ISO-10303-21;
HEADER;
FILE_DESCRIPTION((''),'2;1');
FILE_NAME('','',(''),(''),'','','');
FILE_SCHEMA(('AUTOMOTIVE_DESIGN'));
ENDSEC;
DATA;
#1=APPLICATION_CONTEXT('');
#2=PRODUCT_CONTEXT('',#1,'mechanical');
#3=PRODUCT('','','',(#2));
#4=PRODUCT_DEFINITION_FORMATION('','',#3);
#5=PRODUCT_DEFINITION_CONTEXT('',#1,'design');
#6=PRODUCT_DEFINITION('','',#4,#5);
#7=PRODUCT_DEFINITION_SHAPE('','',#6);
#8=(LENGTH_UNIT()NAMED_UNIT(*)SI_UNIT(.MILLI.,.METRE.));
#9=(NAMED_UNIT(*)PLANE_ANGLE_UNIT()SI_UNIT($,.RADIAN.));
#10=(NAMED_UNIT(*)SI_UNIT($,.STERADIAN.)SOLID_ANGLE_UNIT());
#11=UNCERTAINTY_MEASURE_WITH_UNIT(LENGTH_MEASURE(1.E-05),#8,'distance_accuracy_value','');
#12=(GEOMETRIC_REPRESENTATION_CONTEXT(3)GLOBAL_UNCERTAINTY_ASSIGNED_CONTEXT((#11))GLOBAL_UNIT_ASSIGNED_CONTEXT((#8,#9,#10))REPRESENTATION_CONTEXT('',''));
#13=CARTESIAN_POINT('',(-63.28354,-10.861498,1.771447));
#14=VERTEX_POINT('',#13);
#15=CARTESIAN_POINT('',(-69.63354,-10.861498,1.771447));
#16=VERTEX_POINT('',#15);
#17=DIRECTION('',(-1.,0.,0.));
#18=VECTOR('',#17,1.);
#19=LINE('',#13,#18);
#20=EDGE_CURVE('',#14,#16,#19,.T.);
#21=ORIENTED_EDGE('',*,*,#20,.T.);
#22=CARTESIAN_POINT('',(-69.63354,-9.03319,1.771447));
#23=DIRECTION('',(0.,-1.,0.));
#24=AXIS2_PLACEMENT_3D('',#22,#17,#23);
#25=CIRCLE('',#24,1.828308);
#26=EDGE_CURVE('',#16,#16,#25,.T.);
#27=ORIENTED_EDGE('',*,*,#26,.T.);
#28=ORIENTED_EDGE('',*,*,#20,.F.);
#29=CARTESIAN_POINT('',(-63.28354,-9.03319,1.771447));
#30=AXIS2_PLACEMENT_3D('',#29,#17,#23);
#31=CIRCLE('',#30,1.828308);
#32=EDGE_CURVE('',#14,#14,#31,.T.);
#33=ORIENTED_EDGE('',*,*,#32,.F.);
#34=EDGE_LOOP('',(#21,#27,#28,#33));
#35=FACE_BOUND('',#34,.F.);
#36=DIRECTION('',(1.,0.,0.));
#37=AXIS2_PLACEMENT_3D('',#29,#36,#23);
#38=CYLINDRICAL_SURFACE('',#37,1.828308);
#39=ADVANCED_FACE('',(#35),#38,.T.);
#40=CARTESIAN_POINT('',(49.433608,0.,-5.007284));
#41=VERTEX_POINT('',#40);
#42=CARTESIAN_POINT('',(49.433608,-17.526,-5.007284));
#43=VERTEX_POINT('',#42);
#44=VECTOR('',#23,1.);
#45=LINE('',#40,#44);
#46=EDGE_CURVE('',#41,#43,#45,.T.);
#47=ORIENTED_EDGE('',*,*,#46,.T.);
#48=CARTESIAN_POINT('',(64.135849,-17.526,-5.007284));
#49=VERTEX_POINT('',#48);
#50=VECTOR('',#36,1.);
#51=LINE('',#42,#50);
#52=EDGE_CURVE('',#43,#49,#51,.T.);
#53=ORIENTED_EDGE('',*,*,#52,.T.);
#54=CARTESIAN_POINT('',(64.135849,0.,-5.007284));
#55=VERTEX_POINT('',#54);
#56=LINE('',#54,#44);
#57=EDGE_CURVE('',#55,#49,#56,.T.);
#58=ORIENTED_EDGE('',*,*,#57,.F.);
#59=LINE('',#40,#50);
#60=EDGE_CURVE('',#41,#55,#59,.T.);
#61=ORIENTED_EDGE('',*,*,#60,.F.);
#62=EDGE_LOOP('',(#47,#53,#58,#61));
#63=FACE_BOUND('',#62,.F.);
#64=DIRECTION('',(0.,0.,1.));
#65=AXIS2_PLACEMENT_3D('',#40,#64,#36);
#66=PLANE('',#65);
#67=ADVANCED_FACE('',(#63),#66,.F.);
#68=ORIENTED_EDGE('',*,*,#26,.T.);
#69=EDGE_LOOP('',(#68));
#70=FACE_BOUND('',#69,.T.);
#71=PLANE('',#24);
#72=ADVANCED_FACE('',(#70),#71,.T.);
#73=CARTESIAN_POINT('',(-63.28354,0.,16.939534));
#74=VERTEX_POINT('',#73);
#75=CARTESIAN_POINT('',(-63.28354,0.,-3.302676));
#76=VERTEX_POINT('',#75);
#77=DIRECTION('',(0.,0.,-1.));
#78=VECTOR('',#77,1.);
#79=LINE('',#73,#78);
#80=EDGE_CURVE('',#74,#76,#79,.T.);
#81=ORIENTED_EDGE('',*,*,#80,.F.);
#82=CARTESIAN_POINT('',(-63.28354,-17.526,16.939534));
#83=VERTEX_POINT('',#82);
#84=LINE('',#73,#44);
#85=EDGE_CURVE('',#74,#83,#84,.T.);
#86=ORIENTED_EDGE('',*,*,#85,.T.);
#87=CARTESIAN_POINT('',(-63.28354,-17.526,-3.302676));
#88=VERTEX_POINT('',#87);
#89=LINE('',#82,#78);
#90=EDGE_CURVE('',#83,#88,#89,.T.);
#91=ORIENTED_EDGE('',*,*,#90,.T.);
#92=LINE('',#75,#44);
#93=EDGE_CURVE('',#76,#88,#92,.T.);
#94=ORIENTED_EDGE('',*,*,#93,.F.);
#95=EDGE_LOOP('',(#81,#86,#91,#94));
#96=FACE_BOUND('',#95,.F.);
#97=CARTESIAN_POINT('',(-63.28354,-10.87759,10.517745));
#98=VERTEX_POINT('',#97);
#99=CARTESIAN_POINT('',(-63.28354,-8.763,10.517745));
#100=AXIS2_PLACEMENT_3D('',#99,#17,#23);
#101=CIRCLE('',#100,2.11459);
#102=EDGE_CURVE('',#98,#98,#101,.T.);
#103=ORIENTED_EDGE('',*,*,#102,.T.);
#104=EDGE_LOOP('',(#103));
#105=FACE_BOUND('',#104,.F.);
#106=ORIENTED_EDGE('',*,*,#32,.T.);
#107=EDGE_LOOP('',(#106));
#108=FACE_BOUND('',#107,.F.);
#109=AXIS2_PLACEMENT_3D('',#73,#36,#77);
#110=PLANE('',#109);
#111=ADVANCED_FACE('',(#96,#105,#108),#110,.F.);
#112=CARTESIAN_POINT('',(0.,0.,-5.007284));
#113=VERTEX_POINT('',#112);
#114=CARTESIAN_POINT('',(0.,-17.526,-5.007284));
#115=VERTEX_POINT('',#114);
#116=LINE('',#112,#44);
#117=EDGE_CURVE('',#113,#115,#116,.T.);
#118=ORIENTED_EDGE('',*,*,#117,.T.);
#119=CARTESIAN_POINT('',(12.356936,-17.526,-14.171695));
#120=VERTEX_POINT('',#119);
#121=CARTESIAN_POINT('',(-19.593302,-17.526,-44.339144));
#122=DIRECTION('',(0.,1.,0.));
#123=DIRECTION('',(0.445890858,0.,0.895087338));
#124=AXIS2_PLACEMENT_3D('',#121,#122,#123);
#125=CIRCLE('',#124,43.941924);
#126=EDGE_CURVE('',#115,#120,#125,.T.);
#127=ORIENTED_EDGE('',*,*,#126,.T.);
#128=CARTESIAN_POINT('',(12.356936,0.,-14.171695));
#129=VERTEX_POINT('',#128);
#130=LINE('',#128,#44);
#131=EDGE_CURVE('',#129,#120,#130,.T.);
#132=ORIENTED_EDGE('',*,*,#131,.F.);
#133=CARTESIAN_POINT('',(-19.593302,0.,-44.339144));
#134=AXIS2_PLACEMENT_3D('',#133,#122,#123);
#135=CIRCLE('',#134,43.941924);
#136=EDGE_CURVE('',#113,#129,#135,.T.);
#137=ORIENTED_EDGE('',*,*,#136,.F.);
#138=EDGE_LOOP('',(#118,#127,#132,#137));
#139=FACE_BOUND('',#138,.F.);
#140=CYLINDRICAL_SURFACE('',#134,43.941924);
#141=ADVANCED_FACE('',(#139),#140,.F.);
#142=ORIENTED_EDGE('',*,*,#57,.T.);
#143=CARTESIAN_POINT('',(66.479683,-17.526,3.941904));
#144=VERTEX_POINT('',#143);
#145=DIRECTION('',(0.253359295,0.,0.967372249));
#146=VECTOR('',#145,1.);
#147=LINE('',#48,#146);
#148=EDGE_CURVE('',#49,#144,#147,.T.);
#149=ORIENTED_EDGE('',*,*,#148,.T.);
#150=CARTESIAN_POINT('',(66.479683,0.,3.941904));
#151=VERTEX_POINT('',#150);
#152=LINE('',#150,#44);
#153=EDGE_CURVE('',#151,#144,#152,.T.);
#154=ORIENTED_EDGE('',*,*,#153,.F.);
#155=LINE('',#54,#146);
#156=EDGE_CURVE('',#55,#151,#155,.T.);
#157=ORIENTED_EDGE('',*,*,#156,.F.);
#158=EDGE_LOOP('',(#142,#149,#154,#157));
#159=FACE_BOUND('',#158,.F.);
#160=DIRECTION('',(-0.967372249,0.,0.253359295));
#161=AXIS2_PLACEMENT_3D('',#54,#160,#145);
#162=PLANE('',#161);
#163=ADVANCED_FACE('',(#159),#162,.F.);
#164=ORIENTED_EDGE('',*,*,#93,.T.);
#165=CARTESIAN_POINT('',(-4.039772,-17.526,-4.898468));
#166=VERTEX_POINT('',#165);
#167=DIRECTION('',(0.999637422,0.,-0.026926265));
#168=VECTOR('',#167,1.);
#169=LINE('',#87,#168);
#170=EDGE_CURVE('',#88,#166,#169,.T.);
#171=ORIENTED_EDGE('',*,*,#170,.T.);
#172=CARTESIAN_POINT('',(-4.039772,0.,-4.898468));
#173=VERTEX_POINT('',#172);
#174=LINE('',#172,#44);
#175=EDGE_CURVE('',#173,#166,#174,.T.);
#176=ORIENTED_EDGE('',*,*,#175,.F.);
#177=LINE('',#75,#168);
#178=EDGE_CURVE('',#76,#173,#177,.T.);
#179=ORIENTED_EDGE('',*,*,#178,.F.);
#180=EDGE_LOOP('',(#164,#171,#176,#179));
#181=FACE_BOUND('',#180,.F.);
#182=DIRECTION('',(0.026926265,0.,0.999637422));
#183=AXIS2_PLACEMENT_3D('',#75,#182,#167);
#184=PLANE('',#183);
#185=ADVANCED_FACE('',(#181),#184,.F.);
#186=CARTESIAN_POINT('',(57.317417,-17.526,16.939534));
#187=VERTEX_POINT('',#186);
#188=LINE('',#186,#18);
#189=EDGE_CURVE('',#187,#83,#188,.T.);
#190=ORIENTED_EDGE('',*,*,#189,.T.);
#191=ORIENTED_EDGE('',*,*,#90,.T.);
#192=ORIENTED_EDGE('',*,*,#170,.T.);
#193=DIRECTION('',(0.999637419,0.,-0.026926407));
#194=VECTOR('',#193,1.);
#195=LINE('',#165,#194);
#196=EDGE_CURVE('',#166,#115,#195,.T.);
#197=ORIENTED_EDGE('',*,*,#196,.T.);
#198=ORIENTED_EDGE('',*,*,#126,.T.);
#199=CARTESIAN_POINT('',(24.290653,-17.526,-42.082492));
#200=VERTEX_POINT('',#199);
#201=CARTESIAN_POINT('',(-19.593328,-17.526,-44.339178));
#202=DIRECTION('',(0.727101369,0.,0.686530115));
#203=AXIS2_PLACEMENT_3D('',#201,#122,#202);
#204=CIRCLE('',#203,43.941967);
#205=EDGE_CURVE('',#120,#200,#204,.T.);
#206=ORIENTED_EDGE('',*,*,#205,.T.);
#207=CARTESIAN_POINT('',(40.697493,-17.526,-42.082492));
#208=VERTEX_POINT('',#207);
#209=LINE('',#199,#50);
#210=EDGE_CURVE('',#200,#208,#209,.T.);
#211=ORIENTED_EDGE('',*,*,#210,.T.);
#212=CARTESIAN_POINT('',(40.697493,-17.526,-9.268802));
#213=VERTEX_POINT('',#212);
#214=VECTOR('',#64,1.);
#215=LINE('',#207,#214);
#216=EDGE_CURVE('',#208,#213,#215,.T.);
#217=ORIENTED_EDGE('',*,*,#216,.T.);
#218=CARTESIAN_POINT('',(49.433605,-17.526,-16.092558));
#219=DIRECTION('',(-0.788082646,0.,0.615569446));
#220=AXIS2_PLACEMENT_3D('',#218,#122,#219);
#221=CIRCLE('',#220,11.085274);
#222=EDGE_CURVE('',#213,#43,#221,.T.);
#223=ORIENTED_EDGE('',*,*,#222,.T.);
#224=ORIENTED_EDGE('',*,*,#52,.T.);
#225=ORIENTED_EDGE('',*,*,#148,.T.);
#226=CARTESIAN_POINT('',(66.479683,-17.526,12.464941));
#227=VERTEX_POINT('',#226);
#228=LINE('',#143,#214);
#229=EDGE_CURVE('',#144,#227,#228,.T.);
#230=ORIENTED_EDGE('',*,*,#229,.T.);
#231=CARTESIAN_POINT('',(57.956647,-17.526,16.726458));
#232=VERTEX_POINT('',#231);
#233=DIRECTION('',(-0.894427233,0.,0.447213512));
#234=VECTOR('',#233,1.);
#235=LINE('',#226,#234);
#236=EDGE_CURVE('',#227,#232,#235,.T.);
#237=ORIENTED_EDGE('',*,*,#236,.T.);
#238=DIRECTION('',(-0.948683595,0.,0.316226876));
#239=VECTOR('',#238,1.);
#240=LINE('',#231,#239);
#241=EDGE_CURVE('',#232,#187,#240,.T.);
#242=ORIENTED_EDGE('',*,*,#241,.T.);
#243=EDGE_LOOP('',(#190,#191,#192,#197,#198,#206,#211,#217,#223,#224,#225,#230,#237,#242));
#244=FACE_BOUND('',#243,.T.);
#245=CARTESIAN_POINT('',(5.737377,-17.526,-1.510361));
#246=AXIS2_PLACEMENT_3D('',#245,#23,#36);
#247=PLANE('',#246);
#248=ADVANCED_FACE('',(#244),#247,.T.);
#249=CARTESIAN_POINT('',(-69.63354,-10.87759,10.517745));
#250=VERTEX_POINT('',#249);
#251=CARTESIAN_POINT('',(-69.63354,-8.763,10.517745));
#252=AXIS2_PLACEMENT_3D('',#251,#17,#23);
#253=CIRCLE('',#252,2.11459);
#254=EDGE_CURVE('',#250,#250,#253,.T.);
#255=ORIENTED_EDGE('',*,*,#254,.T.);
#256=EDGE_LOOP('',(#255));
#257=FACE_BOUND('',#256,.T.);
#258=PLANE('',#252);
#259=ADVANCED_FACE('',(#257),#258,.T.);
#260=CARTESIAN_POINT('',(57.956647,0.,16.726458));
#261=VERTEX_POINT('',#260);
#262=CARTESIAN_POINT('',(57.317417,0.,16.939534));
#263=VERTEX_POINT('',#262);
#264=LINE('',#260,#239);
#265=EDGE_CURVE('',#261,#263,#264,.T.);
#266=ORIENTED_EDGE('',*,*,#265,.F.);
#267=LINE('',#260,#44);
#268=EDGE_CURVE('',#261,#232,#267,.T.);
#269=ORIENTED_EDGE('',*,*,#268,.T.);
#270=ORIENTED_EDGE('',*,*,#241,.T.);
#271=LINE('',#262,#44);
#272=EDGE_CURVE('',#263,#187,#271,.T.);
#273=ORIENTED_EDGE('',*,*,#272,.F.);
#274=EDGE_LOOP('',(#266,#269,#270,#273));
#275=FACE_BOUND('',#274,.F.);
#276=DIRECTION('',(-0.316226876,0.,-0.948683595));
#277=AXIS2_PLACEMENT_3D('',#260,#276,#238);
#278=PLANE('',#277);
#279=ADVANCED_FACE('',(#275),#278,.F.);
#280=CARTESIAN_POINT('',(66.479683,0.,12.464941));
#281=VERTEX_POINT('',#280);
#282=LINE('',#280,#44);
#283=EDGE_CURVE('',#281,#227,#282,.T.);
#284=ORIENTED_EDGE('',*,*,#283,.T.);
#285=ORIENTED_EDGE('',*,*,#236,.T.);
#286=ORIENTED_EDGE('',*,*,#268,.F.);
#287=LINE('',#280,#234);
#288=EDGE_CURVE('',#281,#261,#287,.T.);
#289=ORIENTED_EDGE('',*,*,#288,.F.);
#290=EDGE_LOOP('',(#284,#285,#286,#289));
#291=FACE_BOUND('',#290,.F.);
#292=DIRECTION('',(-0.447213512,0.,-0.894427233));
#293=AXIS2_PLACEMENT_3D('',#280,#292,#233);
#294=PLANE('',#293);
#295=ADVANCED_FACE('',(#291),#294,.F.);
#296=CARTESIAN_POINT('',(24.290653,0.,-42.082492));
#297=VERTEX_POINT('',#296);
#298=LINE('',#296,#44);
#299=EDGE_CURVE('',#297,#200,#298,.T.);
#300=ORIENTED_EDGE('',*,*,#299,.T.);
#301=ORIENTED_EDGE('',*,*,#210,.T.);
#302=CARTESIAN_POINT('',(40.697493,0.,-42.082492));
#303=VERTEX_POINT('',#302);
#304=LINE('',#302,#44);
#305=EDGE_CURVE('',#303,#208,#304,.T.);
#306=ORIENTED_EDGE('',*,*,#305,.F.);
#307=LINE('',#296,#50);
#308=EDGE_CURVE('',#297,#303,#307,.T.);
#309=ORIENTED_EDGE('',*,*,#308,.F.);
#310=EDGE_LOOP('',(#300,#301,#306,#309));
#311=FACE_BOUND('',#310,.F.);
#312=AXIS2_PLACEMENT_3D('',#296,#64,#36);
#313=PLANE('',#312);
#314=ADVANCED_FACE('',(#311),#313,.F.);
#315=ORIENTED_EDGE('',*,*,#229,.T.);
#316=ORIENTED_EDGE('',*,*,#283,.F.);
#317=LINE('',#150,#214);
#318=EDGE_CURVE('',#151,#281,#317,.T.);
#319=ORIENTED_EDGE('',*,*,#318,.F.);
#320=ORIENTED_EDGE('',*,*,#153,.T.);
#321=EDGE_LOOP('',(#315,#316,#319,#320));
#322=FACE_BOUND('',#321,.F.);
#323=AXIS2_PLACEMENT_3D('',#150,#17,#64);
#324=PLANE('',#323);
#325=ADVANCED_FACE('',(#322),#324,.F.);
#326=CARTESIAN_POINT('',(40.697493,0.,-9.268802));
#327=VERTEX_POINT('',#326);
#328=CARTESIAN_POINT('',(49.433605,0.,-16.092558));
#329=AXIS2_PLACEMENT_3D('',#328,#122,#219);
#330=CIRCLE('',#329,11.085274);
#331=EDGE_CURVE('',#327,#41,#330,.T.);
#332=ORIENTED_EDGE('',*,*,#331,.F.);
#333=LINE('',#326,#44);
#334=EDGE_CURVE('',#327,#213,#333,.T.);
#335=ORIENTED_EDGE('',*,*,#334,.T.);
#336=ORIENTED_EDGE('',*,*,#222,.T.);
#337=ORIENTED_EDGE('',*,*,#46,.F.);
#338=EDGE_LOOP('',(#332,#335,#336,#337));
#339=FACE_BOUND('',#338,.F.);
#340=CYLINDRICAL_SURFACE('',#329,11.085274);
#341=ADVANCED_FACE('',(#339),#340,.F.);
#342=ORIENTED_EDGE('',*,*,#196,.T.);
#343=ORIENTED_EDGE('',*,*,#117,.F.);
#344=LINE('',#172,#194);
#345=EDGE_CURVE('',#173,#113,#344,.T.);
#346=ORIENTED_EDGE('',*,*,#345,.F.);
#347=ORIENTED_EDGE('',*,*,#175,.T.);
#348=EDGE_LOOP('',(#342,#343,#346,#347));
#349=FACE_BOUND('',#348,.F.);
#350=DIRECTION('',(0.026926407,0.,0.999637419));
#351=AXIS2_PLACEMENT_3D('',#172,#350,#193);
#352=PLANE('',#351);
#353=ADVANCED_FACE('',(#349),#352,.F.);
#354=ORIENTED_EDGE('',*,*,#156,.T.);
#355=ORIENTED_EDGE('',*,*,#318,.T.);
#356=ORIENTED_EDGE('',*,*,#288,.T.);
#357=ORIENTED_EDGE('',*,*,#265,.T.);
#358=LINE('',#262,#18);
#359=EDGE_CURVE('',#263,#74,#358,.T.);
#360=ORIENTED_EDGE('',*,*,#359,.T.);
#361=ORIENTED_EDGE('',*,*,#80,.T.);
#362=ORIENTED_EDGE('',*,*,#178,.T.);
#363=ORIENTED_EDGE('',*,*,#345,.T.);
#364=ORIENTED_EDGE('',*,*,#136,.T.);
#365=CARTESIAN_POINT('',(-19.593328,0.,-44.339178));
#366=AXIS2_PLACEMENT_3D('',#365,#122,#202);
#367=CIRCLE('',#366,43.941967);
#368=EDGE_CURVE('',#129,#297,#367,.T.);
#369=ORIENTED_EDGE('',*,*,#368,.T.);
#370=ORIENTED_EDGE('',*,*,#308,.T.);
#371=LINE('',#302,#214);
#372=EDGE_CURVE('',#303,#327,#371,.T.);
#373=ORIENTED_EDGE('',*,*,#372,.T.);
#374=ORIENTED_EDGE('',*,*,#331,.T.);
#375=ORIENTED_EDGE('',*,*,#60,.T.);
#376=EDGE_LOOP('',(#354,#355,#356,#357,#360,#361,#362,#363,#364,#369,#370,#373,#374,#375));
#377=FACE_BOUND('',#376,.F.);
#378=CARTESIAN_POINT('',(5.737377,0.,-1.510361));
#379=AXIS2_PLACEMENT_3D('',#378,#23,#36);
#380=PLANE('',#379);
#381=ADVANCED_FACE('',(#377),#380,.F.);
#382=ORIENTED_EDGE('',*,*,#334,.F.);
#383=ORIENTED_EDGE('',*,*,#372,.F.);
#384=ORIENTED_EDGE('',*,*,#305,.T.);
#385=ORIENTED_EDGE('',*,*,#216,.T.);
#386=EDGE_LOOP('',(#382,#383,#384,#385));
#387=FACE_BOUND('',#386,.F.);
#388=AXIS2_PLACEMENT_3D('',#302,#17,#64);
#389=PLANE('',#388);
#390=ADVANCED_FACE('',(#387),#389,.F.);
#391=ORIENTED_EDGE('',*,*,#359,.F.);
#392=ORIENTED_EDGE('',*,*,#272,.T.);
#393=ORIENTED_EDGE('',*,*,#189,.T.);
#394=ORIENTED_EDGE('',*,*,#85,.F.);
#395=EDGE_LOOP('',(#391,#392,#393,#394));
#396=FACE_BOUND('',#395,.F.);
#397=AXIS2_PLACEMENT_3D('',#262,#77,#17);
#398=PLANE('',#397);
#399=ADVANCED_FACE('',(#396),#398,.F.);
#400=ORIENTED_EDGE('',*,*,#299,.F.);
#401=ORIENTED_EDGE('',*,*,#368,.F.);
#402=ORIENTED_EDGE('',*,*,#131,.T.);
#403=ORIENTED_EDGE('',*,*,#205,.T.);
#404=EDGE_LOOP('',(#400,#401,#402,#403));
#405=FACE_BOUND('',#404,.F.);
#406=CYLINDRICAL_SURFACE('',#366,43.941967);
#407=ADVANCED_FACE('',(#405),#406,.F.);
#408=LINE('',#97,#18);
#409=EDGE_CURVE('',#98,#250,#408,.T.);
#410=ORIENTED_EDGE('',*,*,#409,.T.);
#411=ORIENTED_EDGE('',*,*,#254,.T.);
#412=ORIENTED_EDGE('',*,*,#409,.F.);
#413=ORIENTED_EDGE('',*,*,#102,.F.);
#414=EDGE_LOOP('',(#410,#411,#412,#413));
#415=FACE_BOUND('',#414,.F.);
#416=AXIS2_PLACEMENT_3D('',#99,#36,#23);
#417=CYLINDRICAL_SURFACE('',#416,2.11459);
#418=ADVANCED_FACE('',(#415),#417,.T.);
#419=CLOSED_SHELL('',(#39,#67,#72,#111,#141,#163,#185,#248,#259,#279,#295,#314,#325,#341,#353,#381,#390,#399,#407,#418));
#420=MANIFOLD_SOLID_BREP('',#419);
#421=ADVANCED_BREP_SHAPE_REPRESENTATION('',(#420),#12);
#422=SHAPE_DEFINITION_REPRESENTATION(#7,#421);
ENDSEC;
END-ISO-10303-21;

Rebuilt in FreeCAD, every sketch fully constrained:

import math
import FreeCAD as App
import Part
import Sketcher

V = App.Vector
Q = App.Units.Quantity

doc = App.newDocument("Part")
body = doc.addObject("PartDesign::Body", "Body")

sketch1 = body.newObject("Sketcher::SketchObject", "Sketch")
sketch1.AttachmentSupport = (doc.getObject("XZ_Plane"), [""])
sketch1.MapMode = "FlatFace"
sketch1.addGeometry([
    Part.ArcOfCircle(Part.Circle(V(-19.593328, -44.339178, 0), V(0, 0, 1), 43.941967), math.radians(2.943781), math.radians(43.356061)),
    Part.LineSegment(V(24.290653, -42.082492, 0), V(40.697493, -42.082492, 0)),
    Part.LineSegment(V(40.697493, -42.082492, 0), V(40.697493, -9.268802, 0)),
    Part.ArcOfCircle(Part.Circle(V(49.433605, -16.092558, 0), V(0, 0, 1), 11.085274), math.radians(89.999985), math.radians(142.006691)),
    Part.LineSegment(V(49.433608, -5.007284, 0), V(64.135849, -5.007284, 0)),
    Part.LineSegment(V(64.135849, -5.007284, 0), V(66.479683, 3.941904, 0)),
    Part.LineSegment(V(66.479683, 3.941904, 0), V(66.479683, 12.464941, 0)),
    Part.LineSegment(V(66.479683, 12.464941, 0), V(57.956647, 16.726458, 0)),
    Part.LineSegment(V(57.956647, 16.726458, 0), V(57.317417, 16.939534, 0)),
    Part.LineSegment(V(57.317417, 16.939534, 0), V(-63.28354, 16.939534, 0)),
    Part.LineSegment(V(-63.28354, 16.939534, 0), V(-63.28354, -3.302676, 0)),
    Part.LineSegment(V(-63.28354, -3.302676, 0), V(-4.039772, -4.898468, 0)),
    Part.LineSegment(V(-4.039772, -4.898468, 0), V(0, -5.007284, 0)),
    Part.ArcOfCircle(Part.Circle(V(-19.593302, -44.339144, 0), V(0, 0, 1), 43.941924), math.radians(43.356052), math.radians(63.51965)),
], False)
sketch1.addConstraint([
    Sketcher.Constraint("Coincident", 0, 1, 1, 1),
    Sketcher.Constraint("Coincident", 1, 2, 2, 1),
    Sketcher.Constraint("Coincident", 2, 2, 3, 2),
    Sketcher.Constraint("Coincident", 3, 1, 4, 1),
    Sketcher.Constraint("Coincident", 4, 2, 5, 1),
    Sketcher.Constraint("Coincident", 5, 2, 6, 1),
    Sketcher.Constraint("Coincident", 6, 2, 7, 1),
    Sketcher.Constraint("Coincident", 7, 2, 8, 1),
    Sketcher.Constraint("Coincident", 8, 2, 9, 1),
    Sketcher.Constraint("Coincident", 9, 2, 10, 1),
    Sketcher.Constraint("Coincident", 10, 2, 11, 1),
    Sketcher.Constraint("Coincident", 11, 2, 12, 1),
    Sketcher.Constraint("Coincident", 12, 2, 13, 2),
    Sketcher.Constraint("Coincident", 13, 1, 0, 2),
    Sketcher.Constraint("Horizontal", 1),
    Sketcher.Constraint("Vertical", 2),
    Sketcher.Constraint("Horizontal", 4),
    Sketcher.Constraint("Vertical", 6),
    Sketcher.Constraint("Horizontal", 9),
    Sketcher.Constraint("Vertical", 10),
    Sketcher.Constraint("PointOnObject", 12, 2, -2),
    Sketcher.Constraint("Radius", 0, Q("43.941967 mm")),
    Sketcher.Constraint("Radius", 3, Q("11.085274 mm")),
    Sketcher.Constraint("Radius", 13, Q("43.941924 mm")),
    Sketcher.Constraint("DistanceX", 1, 1, 1, 2, Q("16.40684 mm")),
    Sketcher.Constraint("DistanceX", 4, 1, 4, 2, Q("14.702241 mm")),
    Sketcher.Constraint("DistanceY", 2, 1, 2, 2, Q("32.81369 mm")),
    Sketcher.Constraint("DistanceY", 10, 2, 10, 1, Q("20.24221 mm")),
    Sketcher.Constraint("DistanceY", 3, 3, 6, 2, Q("28.557499 mm")),
    Sketcher.Constraint("DistanceX", 7, 2, 4, 2, Q("6.179202 mm")),
    Sketcher.Constraint("Distance", 5, Q("9.251028 mm")),
    Sketcher.Constraint("DistanceX", 9, 2, 9, 1, Q("120.600957 mm")),
    Sketcher.Constraint("DistanceY", 6, 1, 6, 2, Q("8.523037 mm")),
    Sketcher.Constraint("DistanceX", 0, 3, -1, 1, Q("19.593328 mm")),
    Sketcher.Constraint("DistanceY", 0, 3, -1, 1, Q("44.339178 mm")),
    Sketcher.Constraint("DistanceY", 0, 1, -1, 1, Q("42.082492 mm")),
    Sketcher.Constraint("DistanceX", -1, 1, 4, 2, Q("64.135849 mm")),
    Sketcher.Constraint("DistanceY", -1, 1, 6, 2, Q("12.464941 mm")),
    Sketcher.Constraint("DistanceY", -1, 1, 7, 2, Q("16.726458 mm")),
    Sketcher.Constraint("DistanceX", 9, 2, -1, 1, Q("63.28354 mm")),
    Sketcher.Constraint("DistanceY", 11, 2, -1, 1, Q("4.898468 mm")),
    Sketcher.Constraint("DistanceX", 13, 3, 3, 1, Q("69.02691 mm")),
    Sketcher.Constraint("DistanceY", 5, 2, 8, 2, Q("12.99763 mm")),
    Sketcher.Constraint("DistanceX", 13, 3, 11, 2, Q("15.55353 mm")),
    Sketcher.Constraint("DistanceY", 13, 1, 12, 2, Q("9.164411 mm")),
])
pad1 = body.newObject("PartDesign::Pad", "Pad")
pad1.Profile = sketch1
pad1.Length = Q("0.69 in")

sketch2 = body.newObject("Sketcher::SketchObject", "Sketch001")
sketch2.AttachmentSupport = (doc.getObject("YZ_Plane"), [""])
sketch2.MapMode = "FlatFace"
sketch2.AttachmentOffset = App.Placement(V(0, 0, -63.28354), App.Rotation())
sketch2.addGeometry([
    Part.Circle(V(-8.8, 10.5, 0), V(0, 0, 1), 2.1),
    Part.Circle(V(-9, 1.8, 0), V(0, 0, 1), 1.8),
], False)
sketch2.addConstraint([
    Sketcher.Constraint("Diameter", 0, Q("4.22918 mm")),
    Sketcher.Constraint("DistanceX", 0, 3, -1, 1, Q("0.345 in")),
    Sketcher.Constraint("Diameter", 1, Q("3.656616 mm")),
    Sketcher.Constraint("DistanceX", 1, 3, -1, 1, Q("9.03319 mm")),
    Sketcher.Constraint("DistanceY", -1, 1, 0, 3, Q("10.517745 mm")),
    Sketcher.Constraint("DistanceY", -1, 1, 1, 3, Q("1.771447 mm")),
])
pad2 = body.newObject("PartDesign::Pad", "Pad001")
pad2.Profile = sketch2
pad2.Length = Q("0.25 in")
pad2.Reversed = True

doc.recompute()
